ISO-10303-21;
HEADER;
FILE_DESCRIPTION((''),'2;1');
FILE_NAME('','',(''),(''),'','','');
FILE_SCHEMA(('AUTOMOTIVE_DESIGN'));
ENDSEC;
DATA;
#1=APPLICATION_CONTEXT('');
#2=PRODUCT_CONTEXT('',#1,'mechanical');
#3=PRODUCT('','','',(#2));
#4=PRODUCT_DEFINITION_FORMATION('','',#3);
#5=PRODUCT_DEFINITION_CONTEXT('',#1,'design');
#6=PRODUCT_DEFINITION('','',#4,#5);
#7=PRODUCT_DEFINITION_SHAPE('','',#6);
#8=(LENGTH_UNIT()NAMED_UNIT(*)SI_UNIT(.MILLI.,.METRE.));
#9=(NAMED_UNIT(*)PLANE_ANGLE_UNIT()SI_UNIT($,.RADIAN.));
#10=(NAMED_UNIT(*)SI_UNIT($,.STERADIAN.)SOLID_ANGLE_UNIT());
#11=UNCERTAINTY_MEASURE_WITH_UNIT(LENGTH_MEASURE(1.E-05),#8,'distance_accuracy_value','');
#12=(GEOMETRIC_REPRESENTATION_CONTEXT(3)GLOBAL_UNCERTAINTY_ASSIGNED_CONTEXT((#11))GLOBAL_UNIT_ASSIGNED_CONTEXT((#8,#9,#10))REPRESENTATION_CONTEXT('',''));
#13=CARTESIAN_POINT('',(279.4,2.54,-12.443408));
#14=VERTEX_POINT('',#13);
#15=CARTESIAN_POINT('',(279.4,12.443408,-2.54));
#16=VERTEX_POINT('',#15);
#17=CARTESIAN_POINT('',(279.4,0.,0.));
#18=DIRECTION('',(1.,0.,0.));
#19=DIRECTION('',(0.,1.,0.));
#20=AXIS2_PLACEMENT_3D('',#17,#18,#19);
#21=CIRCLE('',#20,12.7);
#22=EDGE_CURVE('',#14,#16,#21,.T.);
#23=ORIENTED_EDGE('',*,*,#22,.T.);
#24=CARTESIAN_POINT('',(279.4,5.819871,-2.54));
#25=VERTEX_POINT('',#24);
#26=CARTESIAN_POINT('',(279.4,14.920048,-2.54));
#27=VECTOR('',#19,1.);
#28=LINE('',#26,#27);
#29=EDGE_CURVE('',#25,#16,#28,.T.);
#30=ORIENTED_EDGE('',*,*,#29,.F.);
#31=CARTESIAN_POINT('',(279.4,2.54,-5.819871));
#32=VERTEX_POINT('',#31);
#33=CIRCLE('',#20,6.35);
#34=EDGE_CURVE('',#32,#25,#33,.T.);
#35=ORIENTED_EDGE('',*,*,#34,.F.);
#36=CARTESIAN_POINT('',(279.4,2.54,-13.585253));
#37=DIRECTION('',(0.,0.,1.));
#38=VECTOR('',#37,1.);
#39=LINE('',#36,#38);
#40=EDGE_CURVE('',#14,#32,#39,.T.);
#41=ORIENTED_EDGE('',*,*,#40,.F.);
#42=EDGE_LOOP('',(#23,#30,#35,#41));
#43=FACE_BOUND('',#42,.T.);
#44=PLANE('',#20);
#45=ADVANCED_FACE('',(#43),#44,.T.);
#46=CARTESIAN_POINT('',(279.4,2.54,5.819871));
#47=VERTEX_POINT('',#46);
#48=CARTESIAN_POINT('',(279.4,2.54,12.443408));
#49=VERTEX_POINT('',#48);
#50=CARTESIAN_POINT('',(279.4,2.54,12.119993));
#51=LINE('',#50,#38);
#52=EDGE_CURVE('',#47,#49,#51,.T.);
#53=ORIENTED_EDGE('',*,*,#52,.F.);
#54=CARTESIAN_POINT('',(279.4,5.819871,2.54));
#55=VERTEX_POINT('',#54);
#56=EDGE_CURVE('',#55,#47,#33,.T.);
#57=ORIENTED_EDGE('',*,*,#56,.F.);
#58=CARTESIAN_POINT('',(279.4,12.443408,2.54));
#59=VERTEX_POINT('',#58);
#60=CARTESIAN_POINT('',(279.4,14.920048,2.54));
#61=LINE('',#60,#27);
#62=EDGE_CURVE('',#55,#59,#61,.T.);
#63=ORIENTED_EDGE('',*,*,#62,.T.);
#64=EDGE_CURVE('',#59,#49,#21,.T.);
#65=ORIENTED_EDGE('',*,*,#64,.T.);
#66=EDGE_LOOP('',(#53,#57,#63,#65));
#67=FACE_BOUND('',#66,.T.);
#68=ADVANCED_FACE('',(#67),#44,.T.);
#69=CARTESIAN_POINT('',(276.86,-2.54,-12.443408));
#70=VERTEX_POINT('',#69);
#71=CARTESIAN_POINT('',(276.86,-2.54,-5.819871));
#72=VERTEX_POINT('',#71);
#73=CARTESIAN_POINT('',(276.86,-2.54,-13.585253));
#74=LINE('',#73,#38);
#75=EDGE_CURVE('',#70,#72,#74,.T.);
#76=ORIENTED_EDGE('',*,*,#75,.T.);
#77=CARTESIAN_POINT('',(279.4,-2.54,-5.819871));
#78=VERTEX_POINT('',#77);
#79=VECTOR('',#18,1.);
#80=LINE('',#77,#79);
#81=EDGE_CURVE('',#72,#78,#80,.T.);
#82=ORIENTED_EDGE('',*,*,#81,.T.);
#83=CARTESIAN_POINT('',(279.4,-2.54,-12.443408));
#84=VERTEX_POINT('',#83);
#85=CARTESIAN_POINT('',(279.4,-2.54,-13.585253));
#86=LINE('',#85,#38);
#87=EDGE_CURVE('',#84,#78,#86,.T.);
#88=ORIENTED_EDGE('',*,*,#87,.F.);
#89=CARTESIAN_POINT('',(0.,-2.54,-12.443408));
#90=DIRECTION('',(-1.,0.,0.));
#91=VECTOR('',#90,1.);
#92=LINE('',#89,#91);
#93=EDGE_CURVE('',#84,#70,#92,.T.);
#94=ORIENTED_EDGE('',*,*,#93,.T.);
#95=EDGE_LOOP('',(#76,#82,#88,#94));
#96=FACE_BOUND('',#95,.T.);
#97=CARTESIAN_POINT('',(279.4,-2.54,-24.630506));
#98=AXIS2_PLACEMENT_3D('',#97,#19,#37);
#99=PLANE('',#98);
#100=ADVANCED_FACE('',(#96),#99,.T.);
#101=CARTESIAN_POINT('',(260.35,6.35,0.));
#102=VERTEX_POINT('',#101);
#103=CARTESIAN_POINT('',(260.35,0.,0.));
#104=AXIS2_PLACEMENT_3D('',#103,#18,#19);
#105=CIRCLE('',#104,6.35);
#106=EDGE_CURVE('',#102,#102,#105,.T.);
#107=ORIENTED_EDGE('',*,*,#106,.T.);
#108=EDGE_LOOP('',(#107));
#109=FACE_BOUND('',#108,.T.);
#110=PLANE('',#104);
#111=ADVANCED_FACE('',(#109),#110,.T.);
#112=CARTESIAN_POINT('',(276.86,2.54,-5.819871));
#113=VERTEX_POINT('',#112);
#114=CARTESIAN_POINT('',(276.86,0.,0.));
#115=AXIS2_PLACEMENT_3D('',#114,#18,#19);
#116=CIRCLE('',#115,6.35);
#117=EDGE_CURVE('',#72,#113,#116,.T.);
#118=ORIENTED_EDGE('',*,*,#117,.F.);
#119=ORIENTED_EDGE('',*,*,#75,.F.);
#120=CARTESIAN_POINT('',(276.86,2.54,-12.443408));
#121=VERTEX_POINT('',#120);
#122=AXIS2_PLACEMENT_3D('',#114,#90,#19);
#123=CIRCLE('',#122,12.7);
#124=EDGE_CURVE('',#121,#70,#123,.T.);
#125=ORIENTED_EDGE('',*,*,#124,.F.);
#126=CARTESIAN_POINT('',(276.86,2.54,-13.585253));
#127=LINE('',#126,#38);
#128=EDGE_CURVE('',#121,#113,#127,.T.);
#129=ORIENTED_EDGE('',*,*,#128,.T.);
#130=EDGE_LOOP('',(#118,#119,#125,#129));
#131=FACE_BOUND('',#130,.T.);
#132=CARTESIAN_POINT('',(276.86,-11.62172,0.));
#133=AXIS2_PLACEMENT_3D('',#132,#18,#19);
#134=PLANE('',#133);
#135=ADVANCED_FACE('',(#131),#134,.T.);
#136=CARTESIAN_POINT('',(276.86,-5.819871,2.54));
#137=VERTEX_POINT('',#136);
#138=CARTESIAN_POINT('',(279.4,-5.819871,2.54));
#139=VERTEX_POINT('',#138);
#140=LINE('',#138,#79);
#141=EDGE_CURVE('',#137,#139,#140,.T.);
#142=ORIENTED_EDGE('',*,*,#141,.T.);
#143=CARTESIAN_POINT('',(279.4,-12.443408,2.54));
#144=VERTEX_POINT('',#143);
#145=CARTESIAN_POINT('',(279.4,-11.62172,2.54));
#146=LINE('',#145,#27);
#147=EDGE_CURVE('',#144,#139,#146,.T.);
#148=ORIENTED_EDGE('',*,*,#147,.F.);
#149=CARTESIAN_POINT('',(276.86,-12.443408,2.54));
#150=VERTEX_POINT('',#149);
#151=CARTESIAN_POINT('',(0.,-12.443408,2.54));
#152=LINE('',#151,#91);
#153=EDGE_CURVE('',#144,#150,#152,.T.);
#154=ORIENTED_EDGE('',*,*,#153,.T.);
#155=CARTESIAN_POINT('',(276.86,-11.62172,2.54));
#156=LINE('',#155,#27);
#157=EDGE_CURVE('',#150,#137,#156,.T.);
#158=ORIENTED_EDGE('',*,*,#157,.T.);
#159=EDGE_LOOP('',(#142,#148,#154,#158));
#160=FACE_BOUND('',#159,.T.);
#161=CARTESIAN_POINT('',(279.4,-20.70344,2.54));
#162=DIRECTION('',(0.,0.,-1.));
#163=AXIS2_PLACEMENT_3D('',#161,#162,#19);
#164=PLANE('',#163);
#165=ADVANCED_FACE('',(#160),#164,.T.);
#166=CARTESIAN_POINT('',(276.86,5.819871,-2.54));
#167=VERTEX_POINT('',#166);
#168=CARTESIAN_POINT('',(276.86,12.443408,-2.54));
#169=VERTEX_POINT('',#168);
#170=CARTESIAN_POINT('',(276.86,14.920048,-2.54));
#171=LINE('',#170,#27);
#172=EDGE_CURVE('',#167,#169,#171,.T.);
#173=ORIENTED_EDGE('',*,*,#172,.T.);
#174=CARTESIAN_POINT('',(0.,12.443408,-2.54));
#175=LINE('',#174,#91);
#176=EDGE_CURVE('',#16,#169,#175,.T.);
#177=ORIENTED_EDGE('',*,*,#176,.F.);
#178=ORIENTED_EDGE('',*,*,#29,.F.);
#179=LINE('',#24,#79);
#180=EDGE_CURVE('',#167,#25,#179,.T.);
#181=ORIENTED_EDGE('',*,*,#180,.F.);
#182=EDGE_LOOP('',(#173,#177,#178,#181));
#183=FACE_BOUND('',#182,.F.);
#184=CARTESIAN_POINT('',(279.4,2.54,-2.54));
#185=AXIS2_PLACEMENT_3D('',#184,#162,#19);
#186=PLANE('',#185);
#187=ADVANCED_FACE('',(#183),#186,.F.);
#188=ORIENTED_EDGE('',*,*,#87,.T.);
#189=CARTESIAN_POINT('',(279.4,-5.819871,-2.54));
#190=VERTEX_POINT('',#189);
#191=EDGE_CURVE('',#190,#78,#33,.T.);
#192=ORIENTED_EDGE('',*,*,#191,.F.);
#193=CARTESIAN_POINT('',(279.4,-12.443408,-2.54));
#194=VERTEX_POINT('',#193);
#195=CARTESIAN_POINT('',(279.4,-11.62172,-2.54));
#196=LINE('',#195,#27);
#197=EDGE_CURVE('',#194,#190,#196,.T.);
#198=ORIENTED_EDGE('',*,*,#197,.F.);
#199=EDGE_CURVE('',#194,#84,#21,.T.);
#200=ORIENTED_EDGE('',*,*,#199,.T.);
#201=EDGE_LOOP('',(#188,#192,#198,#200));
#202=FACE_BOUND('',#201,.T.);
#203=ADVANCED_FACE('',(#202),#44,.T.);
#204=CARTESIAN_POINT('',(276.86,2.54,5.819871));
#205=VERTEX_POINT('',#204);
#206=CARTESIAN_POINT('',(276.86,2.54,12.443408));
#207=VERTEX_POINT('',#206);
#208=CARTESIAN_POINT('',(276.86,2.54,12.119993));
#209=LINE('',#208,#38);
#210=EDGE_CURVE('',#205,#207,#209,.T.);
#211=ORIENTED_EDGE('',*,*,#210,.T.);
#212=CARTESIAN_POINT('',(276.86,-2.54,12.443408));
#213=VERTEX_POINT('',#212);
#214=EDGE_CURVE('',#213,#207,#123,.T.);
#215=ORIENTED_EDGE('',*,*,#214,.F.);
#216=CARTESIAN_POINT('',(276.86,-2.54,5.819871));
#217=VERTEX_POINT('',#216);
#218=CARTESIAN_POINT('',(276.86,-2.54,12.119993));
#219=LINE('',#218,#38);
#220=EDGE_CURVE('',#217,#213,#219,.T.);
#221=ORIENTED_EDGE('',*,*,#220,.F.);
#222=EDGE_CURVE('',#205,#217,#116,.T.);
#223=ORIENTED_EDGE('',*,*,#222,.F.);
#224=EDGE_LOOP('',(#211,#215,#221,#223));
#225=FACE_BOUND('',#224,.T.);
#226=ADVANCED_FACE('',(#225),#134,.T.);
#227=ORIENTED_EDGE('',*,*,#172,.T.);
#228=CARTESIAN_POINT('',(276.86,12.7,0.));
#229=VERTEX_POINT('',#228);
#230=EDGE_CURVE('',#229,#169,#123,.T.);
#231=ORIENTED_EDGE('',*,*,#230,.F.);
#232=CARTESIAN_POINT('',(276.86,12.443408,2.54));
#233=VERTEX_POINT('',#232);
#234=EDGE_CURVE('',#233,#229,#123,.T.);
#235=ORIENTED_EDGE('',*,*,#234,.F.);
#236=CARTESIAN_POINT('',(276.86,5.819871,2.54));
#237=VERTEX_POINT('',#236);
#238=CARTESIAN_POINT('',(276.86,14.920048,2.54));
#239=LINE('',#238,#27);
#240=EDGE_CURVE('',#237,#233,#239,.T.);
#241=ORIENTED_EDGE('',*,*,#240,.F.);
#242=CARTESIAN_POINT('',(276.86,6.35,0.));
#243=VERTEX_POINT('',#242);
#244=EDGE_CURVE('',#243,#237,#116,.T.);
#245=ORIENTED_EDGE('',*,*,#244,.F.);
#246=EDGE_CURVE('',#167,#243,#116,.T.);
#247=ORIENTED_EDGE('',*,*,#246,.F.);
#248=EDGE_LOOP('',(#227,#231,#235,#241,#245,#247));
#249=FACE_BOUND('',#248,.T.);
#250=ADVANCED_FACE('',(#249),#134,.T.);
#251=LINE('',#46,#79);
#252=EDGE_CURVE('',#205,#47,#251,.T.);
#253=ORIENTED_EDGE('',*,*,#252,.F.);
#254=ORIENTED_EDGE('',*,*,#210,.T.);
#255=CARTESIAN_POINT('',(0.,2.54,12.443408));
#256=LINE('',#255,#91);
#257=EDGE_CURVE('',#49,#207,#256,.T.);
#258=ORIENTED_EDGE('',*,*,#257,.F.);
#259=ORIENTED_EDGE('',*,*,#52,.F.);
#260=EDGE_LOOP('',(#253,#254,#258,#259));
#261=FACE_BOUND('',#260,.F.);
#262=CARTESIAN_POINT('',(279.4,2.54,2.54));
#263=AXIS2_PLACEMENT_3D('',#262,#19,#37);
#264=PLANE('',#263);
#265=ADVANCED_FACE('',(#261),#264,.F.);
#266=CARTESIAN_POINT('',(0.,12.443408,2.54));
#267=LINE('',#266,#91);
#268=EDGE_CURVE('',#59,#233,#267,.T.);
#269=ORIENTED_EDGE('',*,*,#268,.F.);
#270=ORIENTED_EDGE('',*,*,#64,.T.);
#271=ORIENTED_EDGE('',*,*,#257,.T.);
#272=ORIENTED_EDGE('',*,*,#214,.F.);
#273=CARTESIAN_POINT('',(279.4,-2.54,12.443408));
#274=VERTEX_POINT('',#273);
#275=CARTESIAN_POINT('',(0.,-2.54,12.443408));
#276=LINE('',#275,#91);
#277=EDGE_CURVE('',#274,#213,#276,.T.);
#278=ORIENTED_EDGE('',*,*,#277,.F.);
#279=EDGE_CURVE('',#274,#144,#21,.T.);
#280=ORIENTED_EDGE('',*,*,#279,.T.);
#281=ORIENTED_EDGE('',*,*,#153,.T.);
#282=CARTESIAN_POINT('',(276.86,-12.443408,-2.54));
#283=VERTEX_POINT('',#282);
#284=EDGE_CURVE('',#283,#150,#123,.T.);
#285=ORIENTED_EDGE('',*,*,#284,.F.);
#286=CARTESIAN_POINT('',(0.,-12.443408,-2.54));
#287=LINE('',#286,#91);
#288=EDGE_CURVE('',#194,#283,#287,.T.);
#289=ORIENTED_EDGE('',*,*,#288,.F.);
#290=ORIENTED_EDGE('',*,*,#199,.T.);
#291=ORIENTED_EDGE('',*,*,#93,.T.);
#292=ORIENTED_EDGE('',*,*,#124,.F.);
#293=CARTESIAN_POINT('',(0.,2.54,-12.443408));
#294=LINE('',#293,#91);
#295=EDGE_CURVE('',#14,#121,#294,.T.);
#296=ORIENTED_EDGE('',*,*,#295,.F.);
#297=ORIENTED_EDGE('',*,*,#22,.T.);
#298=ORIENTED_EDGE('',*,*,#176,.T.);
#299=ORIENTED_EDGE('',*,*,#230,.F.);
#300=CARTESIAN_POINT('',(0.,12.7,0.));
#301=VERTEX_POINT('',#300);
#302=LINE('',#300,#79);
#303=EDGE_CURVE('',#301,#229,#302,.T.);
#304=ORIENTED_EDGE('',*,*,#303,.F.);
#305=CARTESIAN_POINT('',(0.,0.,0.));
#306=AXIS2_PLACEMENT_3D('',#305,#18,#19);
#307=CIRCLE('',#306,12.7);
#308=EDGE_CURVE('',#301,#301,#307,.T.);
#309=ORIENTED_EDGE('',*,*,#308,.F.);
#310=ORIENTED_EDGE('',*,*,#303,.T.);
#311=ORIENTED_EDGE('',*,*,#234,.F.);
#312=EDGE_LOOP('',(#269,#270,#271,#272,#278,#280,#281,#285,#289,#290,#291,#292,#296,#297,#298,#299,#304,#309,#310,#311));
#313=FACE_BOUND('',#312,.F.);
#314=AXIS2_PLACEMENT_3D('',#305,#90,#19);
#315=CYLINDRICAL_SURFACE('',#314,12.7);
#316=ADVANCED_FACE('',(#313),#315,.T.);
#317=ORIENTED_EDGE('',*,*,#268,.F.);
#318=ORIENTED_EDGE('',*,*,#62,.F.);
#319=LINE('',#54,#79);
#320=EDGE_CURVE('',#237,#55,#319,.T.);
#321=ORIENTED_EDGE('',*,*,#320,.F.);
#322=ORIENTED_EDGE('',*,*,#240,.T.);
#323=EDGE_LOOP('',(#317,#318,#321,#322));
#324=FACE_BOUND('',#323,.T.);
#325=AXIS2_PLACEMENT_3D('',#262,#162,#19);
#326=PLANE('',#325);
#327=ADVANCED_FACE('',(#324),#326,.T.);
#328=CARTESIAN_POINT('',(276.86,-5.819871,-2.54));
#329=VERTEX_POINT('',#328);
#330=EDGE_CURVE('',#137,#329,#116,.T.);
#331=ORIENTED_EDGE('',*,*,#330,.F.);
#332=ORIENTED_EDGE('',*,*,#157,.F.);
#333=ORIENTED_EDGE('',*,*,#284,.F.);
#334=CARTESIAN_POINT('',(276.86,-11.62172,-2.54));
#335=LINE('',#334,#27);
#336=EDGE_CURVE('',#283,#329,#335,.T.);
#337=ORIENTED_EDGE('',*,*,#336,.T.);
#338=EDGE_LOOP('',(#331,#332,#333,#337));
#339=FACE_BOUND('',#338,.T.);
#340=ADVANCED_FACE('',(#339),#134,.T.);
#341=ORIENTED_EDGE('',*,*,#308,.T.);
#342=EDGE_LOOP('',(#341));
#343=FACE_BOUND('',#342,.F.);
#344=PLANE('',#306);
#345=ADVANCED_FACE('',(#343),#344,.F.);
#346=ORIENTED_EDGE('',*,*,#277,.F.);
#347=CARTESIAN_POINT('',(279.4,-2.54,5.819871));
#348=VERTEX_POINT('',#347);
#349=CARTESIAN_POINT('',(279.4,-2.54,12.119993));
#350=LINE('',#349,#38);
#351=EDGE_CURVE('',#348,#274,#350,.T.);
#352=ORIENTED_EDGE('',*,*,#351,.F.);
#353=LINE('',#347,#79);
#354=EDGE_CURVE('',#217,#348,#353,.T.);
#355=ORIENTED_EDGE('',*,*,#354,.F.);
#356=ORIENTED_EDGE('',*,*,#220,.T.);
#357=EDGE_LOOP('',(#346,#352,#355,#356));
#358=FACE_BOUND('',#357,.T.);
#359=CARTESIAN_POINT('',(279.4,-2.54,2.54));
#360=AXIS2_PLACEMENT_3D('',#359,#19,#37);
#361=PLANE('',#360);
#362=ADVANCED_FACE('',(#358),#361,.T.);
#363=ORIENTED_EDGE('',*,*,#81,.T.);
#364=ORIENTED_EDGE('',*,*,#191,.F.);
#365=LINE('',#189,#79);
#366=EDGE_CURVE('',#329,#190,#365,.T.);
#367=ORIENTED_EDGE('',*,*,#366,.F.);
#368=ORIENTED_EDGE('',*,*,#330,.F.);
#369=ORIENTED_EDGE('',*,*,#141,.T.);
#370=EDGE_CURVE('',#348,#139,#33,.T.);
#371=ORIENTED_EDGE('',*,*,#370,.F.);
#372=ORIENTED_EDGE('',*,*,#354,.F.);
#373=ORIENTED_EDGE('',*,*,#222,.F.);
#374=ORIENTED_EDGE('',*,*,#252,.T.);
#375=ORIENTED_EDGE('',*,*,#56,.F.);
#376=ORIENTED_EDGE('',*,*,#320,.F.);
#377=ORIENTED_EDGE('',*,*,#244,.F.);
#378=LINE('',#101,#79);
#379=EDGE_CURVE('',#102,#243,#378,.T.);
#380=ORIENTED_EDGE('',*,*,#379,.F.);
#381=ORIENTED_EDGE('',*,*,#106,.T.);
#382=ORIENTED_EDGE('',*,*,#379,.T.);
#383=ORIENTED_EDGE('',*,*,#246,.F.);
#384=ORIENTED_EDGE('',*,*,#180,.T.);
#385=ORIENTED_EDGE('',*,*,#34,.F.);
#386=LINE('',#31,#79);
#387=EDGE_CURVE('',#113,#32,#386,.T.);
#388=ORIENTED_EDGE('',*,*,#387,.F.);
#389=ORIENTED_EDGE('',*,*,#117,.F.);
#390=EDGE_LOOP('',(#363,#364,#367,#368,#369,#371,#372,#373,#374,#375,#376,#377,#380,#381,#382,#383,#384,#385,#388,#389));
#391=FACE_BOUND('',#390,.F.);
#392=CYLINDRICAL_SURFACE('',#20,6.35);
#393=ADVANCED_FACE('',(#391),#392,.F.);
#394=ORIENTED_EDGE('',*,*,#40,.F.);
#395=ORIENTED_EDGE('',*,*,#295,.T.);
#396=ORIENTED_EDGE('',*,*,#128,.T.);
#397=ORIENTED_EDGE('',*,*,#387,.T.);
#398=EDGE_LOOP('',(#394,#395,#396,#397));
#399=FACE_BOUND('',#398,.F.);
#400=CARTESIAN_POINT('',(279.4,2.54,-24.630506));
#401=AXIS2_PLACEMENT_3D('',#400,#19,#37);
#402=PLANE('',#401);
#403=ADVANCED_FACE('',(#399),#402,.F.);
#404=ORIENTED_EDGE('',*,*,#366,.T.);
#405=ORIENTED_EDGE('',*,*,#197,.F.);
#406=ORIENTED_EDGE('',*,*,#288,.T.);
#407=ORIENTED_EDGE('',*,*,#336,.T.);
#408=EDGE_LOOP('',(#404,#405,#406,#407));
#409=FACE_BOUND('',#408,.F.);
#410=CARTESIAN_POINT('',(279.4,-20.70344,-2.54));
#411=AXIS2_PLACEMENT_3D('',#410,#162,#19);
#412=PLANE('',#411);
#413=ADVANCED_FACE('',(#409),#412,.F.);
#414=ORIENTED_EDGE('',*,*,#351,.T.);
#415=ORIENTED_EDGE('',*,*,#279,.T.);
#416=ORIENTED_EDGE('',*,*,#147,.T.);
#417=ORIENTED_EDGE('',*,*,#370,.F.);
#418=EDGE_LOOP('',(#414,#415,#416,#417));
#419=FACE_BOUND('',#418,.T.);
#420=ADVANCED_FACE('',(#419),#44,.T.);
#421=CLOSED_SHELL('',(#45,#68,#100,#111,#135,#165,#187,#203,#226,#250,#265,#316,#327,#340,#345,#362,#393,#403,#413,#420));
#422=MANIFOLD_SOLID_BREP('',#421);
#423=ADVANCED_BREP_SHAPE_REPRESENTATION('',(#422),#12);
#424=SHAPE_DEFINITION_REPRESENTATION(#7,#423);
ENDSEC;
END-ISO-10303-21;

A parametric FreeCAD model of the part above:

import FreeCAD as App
import Part
import Sketcher

V = App.Vector
Q = App.Units.Quantity

doc = App.newDocument("Part")
body = doc.addObject("PartDesign::Body", "Body")

# Sketch on YZ plane
sketch1 = body.newObject("Sketcher::SketchObject", "Sketch")
sketch1.AttachmentSupport = (doc.getObject("YZ_Plane"), [""])
sketch1.MapMode = "FlatFace"
sketch1.addGeometry(Part.Circle(V(0, 0, 0), V(0, 0, 1), 12.7), False)
sketch1.addConstraint([
    Sketcher.Constraint("Coincident", 0, 3, -1, 1),
    Sketcher.Constraint("Diameter", 0, Q("1 in")),
])
pad1 = body.newObject("PartDesign::Pad", "Pad")
pad1.Profile = sketch1
pad1.Length = Q("11 in")

# Sketch on YZ plane
sketch2 = body.newObject("Sketcher::SketchObject", "Sketch001")
sketch2.AttachmentSupport = (doc.getObject("YZ_Plane"), [""])
sketch2.MapMode = "FlatFace"
sketch2.AttachmentOffset = App.Placement(V(0, 0, 11 * 25.4), App.Rotation())
sketch2.addGeometry(Part.Circle(V(0, 0, 0), V(0, 0, 1), 6.35), False)
sketch2.addConstraint([
    Sketcher.Constraint("Coincident", 0, 3, -1, 1),
    Sketcher.Constraint("Diameter", 0, Q("0.5 in")),
])
pocket1 = body.newObject("PartDesign::Pocket", "Pocket")
pocket1.Profile = sketch2
pocket1.Length = Q("0.1 in")

# Sketch on YZ plane
sketch3 = body.newObject("Sketcher::SketchObject", "Sketch002")
sketch3.AttachmentSupport = (doc.getObject("YZ_Plane"), [""])
sketch3.MapMode = "FlatFace"
sketch3.AttachmentOffset = App.Placement(V(0, 0, 11 * 25.4), App.Rotation())
sketch3.addGeometry(Part.Circle(V(0, 0, 0), V(0, 0, 1), 6.35), False)
sketch3.addConstraint([
    Sketcher.Constraint("Coincident", 0, 3, -1, 1),
    Sketcher.Constraint("Diameter", 0, Q("0.5 in")),
])
pocket2 = body.newObject("PartDesign::Pocket", "Pocket001")
pocket2.Profile = sketch3
pocket2.Length = Q("0.75 in")

# Sketch on YZ plane
sketch4 = body.newObject("Sketcher::SketchObject", "Sketch003")
sketch4.AttachmentSupport = (doc.getObject("YZ_Plane"), [""])
sketch4.MapMode = "FlatFace"
sketch4.AttachmentOffset = App.Placement(V(0, 0, 11 * 25.4), App.Rotation())
sketch4.addGeometry([
    Part.LineSegment(V(-20.70344, 2.54, 0), V(-20.70344, -2.54, 0)),  # 0
    Part.LineSegment(V(-20.70344, -2.54, 0), V(-2.54, -2.54, 0)),  # 1
    Part.LineSegment(V(-2.54, -2.54, 0), V(-2.54, -24.630506, 0)),  # 2
    Part.LineSegment(V(-2.54, -24.630506, 0), V(2.54, -24.630506, 0)),  # 3
    Part.LineSegment(V(2.54, -24.630506, 0), V(2.54, -2.54, 0)),  # 4
    Part.LineSegment(V(2.54, -2.54, 0), V(27.300096, -2.54, 0)),  # 5
    Part.LineSegment(V(27.300096, -2.54, 0), V(27.300096, 2.54, 0)),  # 6
    Part.LineSegment(V(27.300096, 2.54, 0), V(2.54, 2.54, 0)),  # 7
    Part.LineSegment(V(2.54, 2.54, 0), V(2.54, 21.699987, 0)),  # 8
    Part.LineSegment(V(2.54, 21.699987, 0), V(-2.54, 21.699987, 0)),  # 9
    Part.LineSegment(V(-2.54, 21.699987, 0), V(-2.54, 2.54, 0)),  # 10
    Part.LineSegment(V(-2.54, 2.54, 0), V(-20.70344, 2.54, 0)),  # 11
    Part.LineSegment(V(-2.539999, -2.54, 0), V(-2.539999, 2.539999, 0)),  # 12
    Part.LineSegment(V(-2.539999, 2.539999, 0), V(2.539999, 2.539999, 0)),  # 13
    Part.LineSegment(V(2.539999, 2.539999, 0), V(2.539999, -2.54, 0)),  # 14
    Part.LineSegment(V(2.539999, -2.54, 0), V(-2.539999, -2.54, 0)),  # 15
], False)
sketch4.addConstraint([
    Sketcher.Constraint("Coincident", 0, 2, 1, 1),
    Sketcher.Constraint("Coincident", 1, 2, 2, 1),
    Sketcher.Constraint("Coincident", 2, 2, 3, 1),
    Sketcher.Constraint("Coincident", 3, 2, 4, 1),
    Sketcher.Constraint("Coincident", 4, 2, 5, 1),
    Sketcher.Constraint("Coincident", 5, 2, 6, 1),
    Sketcher.Constraint("Coincident", 6, 2, 7, 1),
    Sketcher.Constraint("Coincident", 7, 2, 8, 1),
    Sketcher.Constraint("Coincident", 8, 2, 9, 1),
    Sketcher.Constraint("Coincident", 9, 2, 10, 1),
    Sketcher.Constraint("Coincident", 10, 2, 11, 1),
    Sketcher.Constraint("Coincident", 11, 2, 0, 1),
    Sketcher.Constraint("Coincident", 12, 2, 13, 1),
    Sketcher.Constraint("Coincident", 13, 2, 14, 1),
    Sketcher.Constraint("Coincident", 14, 2, 15, 1),
    Sketcher.Constraint("Coincident", 15, 2, 12, 1),
    Sketcher.Constraint("Vertical", 0),
    Sketcher.Constraint("Horizontal", 1),
    Sketcher.Constraint("Vertical", 2),
    Sketcher.Constraint("Horizontal", 3),
    Sketcher.Constraint("Vertical", 4),
    Sketcher.Constraint("Horizontal", 5),
    Sketcher.Constraint("Vertical", 6),
    Sketcher.Constraint("Horizontal", 7),
    Sketcher.Constraint("Vertical", 8),
    Sketcher.Constraint("Horizontal", 9),
    Sketcher.Constraint("Vertical", 10),
    Sketcher.Constraint("Horizontal", 11),
    Sketcher.Constraint("Vertical", 12),
    Sketcher.Constraint("Horizontal", 13),
    Sketcher.Constraint("Vertical", 14),
    Sketcher.Constraint("Horizontal", 15),
    Sketcher.Constraint("Coincident", 12, 2, 10, 2),
    Sketcher.Constraint("Coincident", 13, 2, 7, 2),
    Sketcher.Constraint("Coincident", 14, 2, 4, 2),
    Sketcher.Constraint("Coincident", 15, 2, 1, 2),
    Sketcher.Constraint("Symmetric", 1, 2, 7, 2, -1, 1),
    Sketcher.Constraint("Equal", 15, 0),
    Sketcher.Constraint("DistanceX", 3, 1, 3, 2, Q("0.2 in")),
    Sketcher.Constraint("DistanceX", 1, 1, 1, 2, Q("18.163441 mm")),
    Sketcher.Constraint("DistanceX", 5, 1, 5, 2, Q("24.760096 mm")),
    Sketcher.Constraint("DistanceY", 2, 2, 2, 1, Q("22.090506 mm")),
    Sketcher.Constraint("DistanceY", 8, 1, 8, 2, Q("19.159987 mm")),
])
pocket3 = body.newObject("PartDesign::Pocket", "Pocket002")
pocket3.Profile = sketch4
pocket3.Length = Q("0.1 in")

doc.recompute()
